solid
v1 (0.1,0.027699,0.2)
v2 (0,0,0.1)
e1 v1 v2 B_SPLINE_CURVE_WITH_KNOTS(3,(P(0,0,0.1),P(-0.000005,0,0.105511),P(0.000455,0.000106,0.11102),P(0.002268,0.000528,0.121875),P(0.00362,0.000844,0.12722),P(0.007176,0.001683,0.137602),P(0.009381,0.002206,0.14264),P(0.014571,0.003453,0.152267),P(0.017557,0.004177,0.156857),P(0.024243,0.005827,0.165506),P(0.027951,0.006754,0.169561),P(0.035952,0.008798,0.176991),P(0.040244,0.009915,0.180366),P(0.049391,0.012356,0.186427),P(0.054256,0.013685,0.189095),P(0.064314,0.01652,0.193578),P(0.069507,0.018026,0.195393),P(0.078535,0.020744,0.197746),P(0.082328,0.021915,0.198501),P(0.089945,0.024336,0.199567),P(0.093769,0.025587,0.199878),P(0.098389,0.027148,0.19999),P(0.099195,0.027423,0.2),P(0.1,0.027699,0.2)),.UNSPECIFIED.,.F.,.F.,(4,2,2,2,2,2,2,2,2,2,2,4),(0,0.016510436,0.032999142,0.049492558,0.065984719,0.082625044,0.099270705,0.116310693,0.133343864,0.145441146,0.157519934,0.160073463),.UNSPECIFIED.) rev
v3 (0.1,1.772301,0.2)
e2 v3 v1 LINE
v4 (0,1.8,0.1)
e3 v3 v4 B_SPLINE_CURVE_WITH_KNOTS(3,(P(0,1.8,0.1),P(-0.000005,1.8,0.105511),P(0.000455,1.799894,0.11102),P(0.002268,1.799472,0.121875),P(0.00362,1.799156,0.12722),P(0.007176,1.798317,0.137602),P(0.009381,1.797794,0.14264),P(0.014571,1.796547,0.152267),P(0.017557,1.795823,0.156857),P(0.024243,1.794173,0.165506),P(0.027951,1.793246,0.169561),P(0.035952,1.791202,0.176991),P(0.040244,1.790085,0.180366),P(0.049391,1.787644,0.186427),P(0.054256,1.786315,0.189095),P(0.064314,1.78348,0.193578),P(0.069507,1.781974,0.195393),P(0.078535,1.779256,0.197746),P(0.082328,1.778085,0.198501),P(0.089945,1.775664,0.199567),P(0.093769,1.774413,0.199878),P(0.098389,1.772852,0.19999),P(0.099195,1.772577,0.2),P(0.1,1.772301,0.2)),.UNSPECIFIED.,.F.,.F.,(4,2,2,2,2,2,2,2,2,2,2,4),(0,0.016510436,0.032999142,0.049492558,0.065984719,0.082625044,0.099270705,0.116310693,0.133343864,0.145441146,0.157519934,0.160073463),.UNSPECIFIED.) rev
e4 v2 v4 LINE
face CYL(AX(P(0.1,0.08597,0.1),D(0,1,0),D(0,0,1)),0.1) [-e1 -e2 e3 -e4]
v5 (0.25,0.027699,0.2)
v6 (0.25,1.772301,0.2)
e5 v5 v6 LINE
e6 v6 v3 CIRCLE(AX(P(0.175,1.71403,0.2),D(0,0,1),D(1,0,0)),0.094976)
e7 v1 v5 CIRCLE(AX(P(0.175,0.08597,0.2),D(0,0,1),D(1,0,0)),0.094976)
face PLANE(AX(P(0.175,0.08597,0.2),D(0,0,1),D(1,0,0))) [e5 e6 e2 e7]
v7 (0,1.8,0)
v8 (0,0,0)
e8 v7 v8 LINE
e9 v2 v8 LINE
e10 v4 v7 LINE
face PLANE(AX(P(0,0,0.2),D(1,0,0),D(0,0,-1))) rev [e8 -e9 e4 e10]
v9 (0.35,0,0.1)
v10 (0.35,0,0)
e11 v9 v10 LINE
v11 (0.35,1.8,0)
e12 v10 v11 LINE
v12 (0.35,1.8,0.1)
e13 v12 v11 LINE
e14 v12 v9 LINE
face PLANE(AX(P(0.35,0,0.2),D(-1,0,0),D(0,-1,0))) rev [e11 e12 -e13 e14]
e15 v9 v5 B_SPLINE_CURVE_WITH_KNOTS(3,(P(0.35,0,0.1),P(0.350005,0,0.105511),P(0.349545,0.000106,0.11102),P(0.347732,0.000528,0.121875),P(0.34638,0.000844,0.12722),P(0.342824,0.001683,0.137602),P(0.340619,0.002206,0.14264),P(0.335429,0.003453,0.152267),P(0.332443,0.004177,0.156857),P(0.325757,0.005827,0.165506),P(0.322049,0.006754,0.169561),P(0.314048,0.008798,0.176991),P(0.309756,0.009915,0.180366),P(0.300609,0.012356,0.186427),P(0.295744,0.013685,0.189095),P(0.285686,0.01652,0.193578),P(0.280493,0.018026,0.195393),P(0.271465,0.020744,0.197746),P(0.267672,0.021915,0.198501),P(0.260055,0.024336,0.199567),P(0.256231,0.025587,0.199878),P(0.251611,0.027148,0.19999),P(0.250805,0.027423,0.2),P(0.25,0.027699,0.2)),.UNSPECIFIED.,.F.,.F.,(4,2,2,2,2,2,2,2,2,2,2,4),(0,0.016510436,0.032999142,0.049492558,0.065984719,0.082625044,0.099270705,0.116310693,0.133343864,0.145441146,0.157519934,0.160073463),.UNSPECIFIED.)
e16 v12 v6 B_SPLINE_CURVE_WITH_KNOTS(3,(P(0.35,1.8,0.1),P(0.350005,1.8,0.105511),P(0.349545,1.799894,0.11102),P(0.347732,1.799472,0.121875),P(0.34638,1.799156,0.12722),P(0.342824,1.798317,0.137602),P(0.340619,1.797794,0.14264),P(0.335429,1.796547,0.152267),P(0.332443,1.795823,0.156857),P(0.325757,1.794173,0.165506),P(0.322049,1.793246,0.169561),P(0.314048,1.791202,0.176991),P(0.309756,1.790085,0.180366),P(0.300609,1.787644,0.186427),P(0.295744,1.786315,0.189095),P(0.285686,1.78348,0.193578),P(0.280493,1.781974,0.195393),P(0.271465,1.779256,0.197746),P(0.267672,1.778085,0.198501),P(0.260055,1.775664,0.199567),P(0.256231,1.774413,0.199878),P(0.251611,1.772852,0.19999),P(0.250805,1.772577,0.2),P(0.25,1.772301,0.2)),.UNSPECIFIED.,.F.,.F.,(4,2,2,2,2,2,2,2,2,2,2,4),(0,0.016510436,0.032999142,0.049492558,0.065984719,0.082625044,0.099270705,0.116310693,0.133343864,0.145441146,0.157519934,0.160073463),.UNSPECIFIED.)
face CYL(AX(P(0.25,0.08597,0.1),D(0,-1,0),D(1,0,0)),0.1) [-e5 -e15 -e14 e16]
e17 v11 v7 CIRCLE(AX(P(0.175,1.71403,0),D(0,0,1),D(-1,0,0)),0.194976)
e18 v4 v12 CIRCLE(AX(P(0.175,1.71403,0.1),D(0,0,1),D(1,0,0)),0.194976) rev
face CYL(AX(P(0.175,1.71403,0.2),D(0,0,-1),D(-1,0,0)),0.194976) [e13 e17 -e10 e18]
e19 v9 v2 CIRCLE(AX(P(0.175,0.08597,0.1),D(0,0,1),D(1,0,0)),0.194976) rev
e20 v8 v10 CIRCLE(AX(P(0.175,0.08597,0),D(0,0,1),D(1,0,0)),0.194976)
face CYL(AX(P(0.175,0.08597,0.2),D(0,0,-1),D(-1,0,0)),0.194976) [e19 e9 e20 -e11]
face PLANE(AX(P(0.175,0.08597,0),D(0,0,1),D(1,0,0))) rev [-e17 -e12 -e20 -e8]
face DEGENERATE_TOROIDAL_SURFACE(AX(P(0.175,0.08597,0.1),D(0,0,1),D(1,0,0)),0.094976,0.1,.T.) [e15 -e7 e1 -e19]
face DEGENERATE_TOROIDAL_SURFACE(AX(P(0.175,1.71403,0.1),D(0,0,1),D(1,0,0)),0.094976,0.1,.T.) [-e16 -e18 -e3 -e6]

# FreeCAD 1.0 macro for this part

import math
import FreeCAD as App
import Part
import Sketcher
from FreeCAD import Vector


def edges_at(feature, points):
    """Names of the edges that pass closest to the given points."""
    edges = feature.Shape.Edges
    near = lambda p: min(range(len(edges)), key=lambda i: edges[i].distToShape(Part.Vertex(*p))[0])
    return sorted({f"Edge{near(p) + 1}" for p in points})

doc = App.newDocument("Part")
body = doc.addObject("PartDesign::Body", "Body")

# Sketch on XY plane
sketch1 = body.newObject("Sketcher::SketchObject", "Sketch")
sketch1.AttachmentSupport = (doc.getObject("XY_Plane"), [""])
sketch1.MapMode = "FlatFace"
sketch1.addGeometry(Part.LineSegment(Vector(0, 1.8, 0), Vector(0, 0, 0)), False)
sketch1.addGeometry(Part.ArcOfCircle(Part.Circle(Vector(0.17, 0.09, 0), Vector(0, 0, 1), 0.19), math.radians(-154), math.radians(-26)), False)
sketch1.addGeometry(Part.LineSegment(Vector(0.35, 0, 0), Vector(0.35, 1.8, 0)), False)
sketch1.addGeometry(Part.ArcOfCircle(Part.Circle(Vector(0.17, 1.71, 0), Vector(0, 0, 1), 0.19), math.radians(26), math.radians(154)), False)
sketch1.addConstraint(Sketcher.Constraint("Coincident", 0, 2, 1, 1))
sketch1.addConstraint(Sketcher.Constraint("Coincident", 1, 2, 2, 1))
sketch1.addConstraint(Sketcher.Constraint("Coincident", 2, 2, 3, 1))
sketch1.addConstraint(Sketcher.Constraint("Coincident", 3, 2, 0, 1))
sketch1.addConstraint(Sketcher.Constraint("Vertical", 0))
sketch1.addConstraint(Sketcher.Constraint("Vertical", 2))
sketch1.addConstraint(Sketcher.Constraint("Coincident", 0, 2, -1, 1))
sketch1.addConstraint(Sketcher.Constraint("Equal", 1, 3))
sketch1.addConstraint(Sketcher.Constraint("PointOnObject", 1, 2, -1))
sketch1.addConstraint(Sketcher.Constraint("Horizontal", 2, 2, 3, 2))
sketch1.addConstraint(Sketcher.Constraint("DistanceY", 0, 2, 0, 1, 1.8))
sketch1.addConstraint(Sketcher.Constraint("DistanceX", -1, 1, 1, 2, 0.35))
sketch1.addConstraint(Sketcher.Constraint("Radius", 1, 0.194976))
pad1 = body.newObject("PartDesign::Pad", "Pad")
pad1.Profile = sketch1
pad1.Length = 0.2
doc.recompute()

fillet = body.newObject("PartDesign::Fillet", "Fillet")
fillet.Base = (pad1, edges_at(pad1, [
    (0.175, 1.909, 0.2),
    (0, 0.9, 0.2),
    (0.175, -0.109, 0.2),
    (0.35, 0.9, 0.2),
]))
fillet.Radius = 0.1

doc.recompute()
